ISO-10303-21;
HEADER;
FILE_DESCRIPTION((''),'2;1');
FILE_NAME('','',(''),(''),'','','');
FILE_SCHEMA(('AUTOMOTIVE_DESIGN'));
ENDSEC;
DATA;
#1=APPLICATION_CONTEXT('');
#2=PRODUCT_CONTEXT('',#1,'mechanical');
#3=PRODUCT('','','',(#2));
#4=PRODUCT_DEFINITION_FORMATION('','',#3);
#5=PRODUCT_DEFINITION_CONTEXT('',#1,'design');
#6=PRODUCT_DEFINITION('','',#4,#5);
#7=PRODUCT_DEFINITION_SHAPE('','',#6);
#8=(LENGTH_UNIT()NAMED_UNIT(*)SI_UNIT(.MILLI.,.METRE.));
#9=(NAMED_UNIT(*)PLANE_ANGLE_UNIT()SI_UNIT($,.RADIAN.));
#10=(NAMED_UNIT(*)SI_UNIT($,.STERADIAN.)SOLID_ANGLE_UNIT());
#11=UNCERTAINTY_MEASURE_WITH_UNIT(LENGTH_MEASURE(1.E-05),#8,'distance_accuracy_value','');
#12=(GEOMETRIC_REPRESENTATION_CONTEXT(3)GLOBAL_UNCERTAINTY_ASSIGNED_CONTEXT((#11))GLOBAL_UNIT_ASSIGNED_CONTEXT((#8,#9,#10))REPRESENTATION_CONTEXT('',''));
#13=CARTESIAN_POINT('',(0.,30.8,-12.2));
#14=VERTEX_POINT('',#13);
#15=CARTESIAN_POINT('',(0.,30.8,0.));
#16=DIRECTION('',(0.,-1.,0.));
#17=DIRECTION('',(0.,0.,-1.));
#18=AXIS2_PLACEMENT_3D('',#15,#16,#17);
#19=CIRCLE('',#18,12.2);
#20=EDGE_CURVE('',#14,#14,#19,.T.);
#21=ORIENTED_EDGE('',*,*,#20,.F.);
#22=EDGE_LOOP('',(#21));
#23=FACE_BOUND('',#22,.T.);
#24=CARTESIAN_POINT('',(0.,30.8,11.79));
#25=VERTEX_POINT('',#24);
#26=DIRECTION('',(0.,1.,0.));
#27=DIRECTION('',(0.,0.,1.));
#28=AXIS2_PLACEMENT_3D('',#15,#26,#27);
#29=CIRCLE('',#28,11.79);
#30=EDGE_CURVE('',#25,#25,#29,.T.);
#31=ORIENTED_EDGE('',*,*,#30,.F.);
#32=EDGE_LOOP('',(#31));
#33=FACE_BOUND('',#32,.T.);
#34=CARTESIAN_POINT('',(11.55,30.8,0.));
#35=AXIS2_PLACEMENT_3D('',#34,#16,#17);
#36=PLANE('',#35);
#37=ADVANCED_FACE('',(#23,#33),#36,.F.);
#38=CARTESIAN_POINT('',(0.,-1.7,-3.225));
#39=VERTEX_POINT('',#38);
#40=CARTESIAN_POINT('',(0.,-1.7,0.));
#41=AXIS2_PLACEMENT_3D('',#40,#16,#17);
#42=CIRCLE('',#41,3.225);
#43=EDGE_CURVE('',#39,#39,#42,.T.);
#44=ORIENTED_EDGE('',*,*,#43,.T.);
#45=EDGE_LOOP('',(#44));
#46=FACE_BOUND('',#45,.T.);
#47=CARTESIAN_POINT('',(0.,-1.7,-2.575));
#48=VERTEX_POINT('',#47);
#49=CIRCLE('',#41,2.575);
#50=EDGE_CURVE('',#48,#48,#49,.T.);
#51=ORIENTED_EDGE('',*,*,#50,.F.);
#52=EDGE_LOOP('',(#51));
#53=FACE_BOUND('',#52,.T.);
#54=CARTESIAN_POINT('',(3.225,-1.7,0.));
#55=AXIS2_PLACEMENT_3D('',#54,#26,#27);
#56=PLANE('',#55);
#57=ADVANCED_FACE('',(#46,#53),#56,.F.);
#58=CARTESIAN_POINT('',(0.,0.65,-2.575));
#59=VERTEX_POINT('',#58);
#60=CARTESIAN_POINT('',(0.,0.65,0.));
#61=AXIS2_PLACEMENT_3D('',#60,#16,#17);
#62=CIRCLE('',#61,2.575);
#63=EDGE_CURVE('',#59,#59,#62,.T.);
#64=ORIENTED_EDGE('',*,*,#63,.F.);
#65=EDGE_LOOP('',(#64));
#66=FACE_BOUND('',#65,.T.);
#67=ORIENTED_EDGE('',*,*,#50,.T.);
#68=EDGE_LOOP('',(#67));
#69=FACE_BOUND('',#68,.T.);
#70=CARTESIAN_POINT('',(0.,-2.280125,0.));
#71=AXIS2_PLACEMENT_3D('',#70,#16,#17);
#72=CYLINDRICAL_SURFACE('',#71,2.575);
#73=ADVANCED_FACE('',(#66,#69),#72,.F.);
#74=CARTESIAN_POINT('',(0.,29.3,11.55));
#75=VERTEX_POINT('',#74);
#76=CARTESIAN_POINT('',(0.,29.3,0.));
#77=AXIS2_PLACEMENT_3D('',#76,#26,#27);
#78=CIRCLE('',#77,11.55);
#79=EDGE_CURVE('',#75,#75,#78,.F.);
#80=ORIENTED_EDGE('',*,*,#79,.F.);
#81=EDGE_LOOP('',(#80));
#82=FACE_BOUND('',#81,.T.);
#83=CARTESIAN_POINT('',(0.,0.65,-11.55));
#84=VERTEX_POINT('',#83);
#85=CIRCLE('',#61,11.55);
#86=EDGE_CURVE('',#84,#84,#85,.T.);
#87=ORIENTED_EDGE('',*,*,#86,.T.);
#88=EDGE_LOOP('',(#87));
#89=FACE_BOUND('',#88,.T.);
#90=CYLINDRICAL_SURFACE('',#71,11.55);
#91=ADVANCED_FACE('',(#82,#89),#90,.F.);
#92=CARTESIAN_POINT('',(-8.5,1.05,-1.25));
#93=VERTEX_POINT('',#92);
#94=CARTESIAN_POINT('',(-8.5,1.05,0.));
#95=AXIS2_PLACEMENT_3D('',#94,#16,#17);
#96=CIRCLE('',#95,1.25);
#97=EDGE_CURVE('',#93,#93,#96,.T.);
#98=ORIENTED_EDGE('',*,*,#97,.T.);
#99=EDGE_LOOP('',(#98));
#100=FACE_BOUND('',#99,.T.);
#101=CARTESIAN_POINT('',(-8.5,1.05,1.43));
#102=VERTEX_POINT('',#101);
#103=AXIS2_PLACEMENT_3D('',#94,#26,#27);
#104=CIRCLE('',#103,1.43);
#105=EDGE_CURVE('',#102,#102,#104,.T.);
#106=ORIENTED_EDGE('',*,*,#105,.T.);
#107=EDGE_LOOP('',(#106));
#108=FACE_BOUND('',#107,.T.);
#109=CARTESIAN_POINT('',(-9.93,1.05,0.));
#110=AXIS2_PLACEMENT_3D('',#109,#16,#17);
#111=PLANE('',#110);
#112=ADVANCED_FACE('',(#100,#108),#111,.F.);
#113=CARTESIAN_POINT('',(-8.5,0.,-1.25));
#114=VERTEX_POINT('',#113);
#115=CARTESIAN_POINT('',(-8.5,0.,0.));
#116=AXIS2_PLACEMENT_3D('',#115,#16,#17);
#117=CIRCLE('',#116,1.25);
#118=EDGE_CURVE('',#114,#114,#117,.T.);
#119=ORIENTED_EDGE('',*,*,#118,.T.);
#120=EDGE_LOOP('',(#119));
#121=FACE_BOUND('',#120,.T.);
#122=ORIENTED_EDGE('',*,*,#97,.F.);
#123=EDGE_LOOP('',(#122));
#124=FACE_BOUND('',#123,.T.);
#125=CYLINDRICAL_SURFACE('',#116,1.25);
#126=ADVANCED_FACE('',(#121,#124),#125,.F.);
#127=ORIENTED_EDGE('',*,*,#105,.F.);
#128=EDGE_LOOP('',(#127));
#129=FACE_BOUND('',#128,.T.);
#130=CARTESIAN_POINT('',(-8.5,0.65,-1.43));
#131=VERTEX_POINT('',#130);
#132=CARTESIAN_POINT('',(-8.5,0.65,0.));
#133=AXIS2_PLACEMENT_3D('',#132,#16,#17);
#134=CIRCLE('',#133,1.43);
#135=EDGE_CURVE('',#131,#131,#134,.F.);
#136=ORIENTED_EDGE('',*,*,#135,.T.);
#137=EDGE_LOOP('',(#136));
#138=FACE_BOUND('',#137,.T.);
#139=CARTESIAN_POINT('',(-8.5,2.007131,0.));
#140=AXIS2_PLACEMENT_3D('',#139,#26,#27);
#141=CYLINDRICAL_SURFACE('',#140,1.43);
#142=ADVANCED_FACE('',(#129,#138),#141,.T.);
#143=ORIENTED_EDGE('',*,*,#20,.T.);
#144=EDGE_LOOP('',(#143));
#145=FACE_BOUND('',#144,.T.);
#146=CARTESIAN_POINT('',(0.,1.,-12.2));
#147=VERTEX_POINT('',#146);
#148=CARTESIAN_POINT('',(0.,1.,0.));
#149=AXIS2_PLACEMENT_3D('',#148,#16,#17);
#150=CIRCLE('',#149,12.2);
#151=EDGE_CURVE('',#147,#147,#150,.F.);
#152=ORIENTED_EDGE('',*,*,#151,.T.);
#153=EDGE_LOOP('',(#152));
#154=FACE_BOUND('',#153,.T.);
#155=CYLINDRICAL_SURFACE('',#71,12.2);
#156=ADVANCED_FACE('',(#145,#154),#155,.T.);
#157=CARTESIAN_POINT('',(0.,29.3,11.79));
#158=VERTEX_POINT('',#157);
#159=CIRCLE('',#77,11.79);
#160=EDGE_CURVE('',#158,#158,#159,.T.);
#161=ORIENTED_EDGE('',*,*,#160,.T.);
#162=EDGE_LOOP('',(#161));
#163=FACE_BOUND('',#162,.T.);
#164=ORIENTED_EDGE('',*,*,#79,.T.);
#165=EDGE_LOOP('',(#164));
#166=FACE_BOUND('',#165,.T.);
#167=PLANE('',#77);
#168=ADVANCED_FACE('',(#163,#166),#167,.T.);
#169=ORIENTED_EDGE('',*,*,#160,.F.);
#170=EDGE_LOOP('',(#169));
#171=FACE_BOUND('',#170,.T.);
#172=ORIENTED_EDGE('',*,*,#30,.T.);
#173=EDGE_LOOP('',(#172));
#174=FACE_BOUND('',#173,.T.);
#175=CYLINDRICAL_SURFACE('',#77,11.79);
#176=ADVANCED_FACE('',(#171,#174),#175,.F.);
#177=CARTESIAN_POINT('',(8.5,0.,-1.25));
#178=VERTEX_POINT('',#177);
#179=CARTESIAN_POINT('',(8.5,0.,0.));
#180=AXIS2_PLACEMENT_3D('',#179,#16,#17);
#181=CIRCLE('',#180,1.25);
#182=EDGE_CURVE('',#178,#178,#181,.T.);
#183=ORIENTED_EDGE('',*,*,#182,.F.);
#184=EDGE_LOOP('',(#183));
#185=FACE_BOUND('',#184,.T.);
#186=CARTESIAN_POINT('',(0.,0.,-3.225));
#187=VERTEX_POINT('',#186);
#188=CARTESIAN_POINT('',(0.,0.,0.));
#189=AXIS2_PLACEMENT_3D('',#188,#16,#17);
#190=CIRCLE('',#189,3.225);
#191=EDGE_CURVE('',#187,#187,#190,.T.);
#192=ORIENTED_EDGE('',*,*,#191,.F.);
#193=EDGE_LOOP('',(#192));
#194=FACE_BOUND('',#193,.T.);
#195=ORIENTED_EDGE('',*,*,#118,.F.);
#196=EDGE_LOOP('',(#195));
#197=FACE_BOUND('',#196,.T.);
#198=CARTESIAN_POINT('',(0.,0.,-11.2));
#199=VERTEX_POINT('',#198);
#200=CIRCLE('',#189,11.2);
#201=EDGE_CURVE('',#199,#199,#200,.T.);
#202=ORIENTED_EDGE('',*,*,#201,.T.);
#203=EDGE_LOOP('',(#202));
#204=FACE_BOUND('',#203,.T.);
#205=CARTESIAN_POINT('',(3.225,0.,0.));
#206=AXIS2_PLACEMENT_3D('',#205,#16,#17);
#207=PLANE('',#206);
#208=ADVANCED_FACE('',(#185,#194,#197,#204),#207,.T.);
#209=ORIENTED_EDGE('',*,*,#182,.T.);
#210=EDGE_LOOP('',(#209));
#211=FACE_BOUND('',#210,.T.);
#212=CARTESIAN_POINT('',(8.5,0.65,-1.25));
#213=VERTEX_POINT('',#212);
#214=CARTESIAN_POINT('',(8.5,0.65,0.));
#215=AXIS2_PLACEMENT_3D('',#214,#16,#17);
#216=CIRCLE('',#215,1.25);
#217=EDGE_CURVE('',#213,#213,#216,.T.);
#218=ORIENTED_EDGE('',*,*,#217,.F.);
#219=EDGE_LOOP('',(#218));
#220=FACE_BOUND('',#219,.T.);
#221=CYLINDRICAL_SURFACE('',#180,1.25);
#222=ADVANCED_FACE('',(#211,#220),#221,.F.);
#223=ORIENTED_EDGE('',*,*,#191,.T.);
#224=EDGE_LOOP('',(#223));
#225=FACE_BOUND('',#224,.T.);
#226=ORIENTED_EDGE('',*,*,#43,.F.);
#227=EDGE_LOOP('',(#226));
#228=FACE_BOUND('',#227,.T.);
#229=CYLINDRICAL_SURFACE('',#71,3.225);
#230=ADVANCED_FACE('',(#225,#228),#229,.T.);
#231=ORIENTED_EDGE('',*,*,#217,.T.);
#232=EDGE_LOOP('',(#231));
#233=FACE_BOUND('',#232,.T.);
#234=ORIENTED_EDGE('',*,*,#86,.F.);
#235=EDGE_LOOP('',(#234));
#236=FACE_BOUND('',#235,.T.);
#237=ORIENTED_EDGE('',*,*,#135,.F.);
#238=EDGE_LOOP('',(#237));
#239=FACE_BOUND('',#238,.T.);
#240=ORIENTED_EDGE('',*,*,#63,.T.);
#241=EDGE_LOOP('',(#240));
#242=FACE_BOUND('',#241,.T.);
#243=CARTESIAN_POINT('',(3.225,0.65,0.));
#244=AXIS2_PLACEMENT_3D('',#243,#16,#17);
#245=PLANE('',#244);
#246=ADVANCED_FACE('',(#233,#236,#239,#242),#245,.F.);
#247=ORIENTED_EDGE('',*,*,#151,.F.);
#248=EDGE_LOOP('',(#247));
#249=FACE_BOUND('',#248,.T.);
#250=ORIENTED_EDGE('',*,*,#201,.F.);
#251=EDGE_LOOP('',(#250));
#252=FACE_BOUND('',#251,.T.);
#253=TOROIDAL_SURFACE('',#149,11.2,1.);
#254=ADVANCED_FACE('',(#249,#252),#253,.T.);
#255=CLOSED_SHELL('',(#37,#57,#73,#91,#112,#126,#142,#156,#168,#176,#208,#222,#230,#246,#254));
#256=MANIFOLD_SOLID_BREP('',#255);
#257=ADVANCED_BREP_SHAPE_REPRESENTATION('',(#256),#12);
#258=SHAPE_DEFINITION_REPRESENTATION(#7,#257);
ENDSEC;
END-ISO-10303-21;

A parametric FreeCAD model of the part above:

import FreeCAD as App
import Part
import Sketcher
Q = App.Units.Quantity


def edges_at(feature, points):
    """Names of the edges that pass closest to the given points."""
    edges = feature.Shape.Edges
    near = lambda p: min(range(len(edges)), key=lambda i: edges[i].distToShape(Part.Vertex(*p))[0])
    return sorted({f"Edge{near(p) + 1}" for p in points})

doc = App.newDocument("Part")
body = doc.addObject("PartDesign::Body", "Body")

# Sketch on XY plane
sketch1 = body.newObject("Sketcher::SketchObject", "Sketch")
sketch1.AttachmentSupport = (doc.getObject("XY_Plane"), [""])
sketch1.MapMode = "FlatFace"
sketch1.addGeometry([
    Part.LineSegment(App.Vector(3.2, -1.7, 0), App.Vector(3.2, 0, 0)),  # 0
    Part.LineSegment(App.Vector(3.2, 0, 0), App.Vector(12.2, 0, 0)),  # 1
    Part.LineSegment(App.Vector(12.2, 0, 0), App.Vector(12.2, 30.8, 0)),  # 2
    Part.LineSegment(App.Vector(12.2, 30.8, 0), App.Vector(11.6, 30.8, 0)),  # 3
    Part.LineSegment(App.Vector(11.6, 30.8, 0), App.Vector(11.6, 0.7, 0)),  # 4
    Part.LineSegment(App.Vector(11.6, 0.7, 0), App.Vector(2.6, 0.7, 0)),  # 5
    Part.LineSegment(App.Vector(2.6, 0.7, 0), App.Vector(2.6, -1.7, 0)),  # 6
    Part.LineSegment(App.Vector(2.6, -1.7, 0), App.Vector(3.2, -1.7, 0)),  # 7
], False)
sketch1.addConstraint([
    Sketcher.Constraint("Coincident", 0, 2, 1, 1),
    Sketcher.Constraint("Coincident", 1, 2, 2, 1),
    Sketcher.Constraint("Coincident", 2, 2, 3, 1),
    Sketcher.Constraint("Coincident", 3, 2, 4, 1),
    Sketcher.Constraint("Coincident", 4, 2, 5, 1),
    Sketcher.Constraint("Coincident", 5, 2, 6, 1),
    Sketcher.Constraint("Coincident", 6, 2, 7, 1),
    Sketcher.Constraint("Coincident", 7, 2, 0, 1),
    Sketcher.Constraint("Vertical", 0),
    Sketcher.Constraint("Horizontal", 1),
    Sketcher.Constraint("Vertical", 2),
    Sketcher.Constraint("Horizontal", 3),
    Sketcher.Constraint("Vertical", 4),
    Sketcher.Constraint("Horizontal", 5),
    Sketcher.Constraint("Vertical", 6),
    Sketcher.Constraint("Horizontal", 7),
    Sketcher.Constraint("PointOnObject", 0, 2, -1),
    Sketcher.Constraint("Equal", 1, 5),
    Sketcher.Constraint("DistanceY", 0, 1, 0, 2, Q("1.7 mm")),
    Sketcher.Constraint("DistanceY", 2, 1, 2, 2, Q("30.8 mm")),
    Sketcher.Constraint("DistanceX", 3, 2, 3, 1, Q("0.65 mm")),
    Sketcher.Constraint("DistanceY", 4, 2, 4, 1, Q("30.15 mm")),
    Sketcher.Constraint("DistanceX", -1, 1, 1, 2, Q("12.2 mm")),
    Sketcher.Constraint("DistanceX", 1, 1, 1, 2, Q("8.975 mm")),
])
revolution = body.newObject("PartDesign::Revolution", "Revolution")
revolution.Profile = sketch1
revolution.ReferenceAxis = (sketch1, ["V_Axis"])
revolution.Angle = 360

# Sketch on XZ plane
sketch2 = body.newObject("Sketcher::SketchObject", "Sketch001")
sketch2.AttachmentSupport = (doc.getObject("XZ_Plane"), [""])
sketch2.MapMode = "FlatFace"
sketch2.addGeometry([
    Part.Circle(App.Vector(-8.5, 0, 0), App.Vector(0, 0, 1), 1),
    Part.Circle(App.Vector(8.5, 0, 0), App.Vector(0, 0, 1), 1),
], False)
sketch2.addConstraint([
    Sketcher.Constraint("Equal", 0, 1),
    Sketcher.Constraint("Symmetric", 0, 3, 1, 3, -1, 1),
    Sketcher.Constraint("PointOnObject", 0, 3, -1),
    Sketcher.Constraint("Diameter", 0, Q("2 mm")),
    Sketcher.Constraint("DistanceX", 0, 3, 1, 3, Q("17 mm")),
])
pocket1 = body.newObject("PartDesign::Pocket", "Pocket")
pocket1.Profile = sketch2
pocket1.Type = "ThroughAll"

# Sketch on XY plane
sketch3 = body.newObject("Sketcher::SketchObject", "Sketch002")
sketch3.AttachmentSupport = (doc.getObject("XY_Plane"), [""])
sketch3.MapMode = "FlatFace"
sketch3.addGeometry([
    Part.LineSegment(App.Vector(-9.93, 1.05, 0), App.Vector(-9.93, 0.65, 0)),
    Part.LineSegment(App.Vector(-9.93, 0.65, 0), App.Vector(-9.5, 0.65, 0)),
    Part.LineSegment(App.Vector(-9.5, 0.65, 0), App.Vector(-9.5, 1.05, 0)),
    Part.LineSegment(App.Vector(-9.5, 1.05, 0), App.Vector(-9.93, 1.05, 0)),
], False)
sketch3.addGeometry(Part.LineSegment(App.Vector(-8.5, 1.05, 0), App.Vector(-8.5, 0.65, 0)), True)  # axis
sketch3.addConstraint([
    Sketcher.Constraint("Coincident", 0, 2, 1, 1),
    Sketcher.Constraint("Coincident", 1, 2, 2, 1),
    Sketcher.Constraint("Coincident", 2, 2, 3, 1),
    Sketcher.Constraint("Coincident", 3, 2, 0, 1),
    Sketcher.Constraint("Vertical", 0),
    Sketcher.Constraint("Horizontal", 1),
    Sketcher.Constraint("Vertical", 2),
    Sketcher.Constraint("Horizontal", 3),
    Sketcher.Constraint("Vertical", 4),
    Sketcher.Constraint("Horizontal", 3, 2, 4, 1),
    Sketcher.Constraint("Horizontal", 1, 2, 4, 2),
    Sketcher.Constraint("DistanceY", 0, 2, 0, 1, Q("0.4 mm")),
    Sketcher.Constraint("DistanceX", 2, 2, 4, 1, Q("1 mm")),
    Sketcher.Constraint("DistanceX", 1, 1, 1, 2, Q("0.43 mm")),
    Sketcher.Constraint("DistanceX", 1, 2, -1, 1, Q("9.5 mm")),
    Sketcher.Constraint("DistanceY", -1, 1, 0, 2, Q("0.65 mm")),
])
revolution2 = body.newObject("PartDesign::Revolution", "Revolution001")
revolution2.Profile = sketch3
revolution2.ReferenceAxis = (sketch3, ["Axis0"])
revolution2.Angle = 360

# Sketch on XZ plane
sketch4 = body.newObject("Sketcher::SketchObject", "Sketch003")
sketch4.AttachmentSupport = (doc.getObject("XZ_Plane"), [""])
sketch4.MapMode = "FlatFace"
sketch4.addGeometry([
    Part.Circle(App.Vector(-8.5, 0, 0), App.Vector(0, 0, 1), 1.2),
    Part.Circle(App.Vector(8.5, 0, 0), App.Vector(0, 0, 1), 1.2),
], False)
sketch4.addConstraint([
    Sketcher.Constraint("Equal", 0, 1),
    Sketcher.Constraint("Symmetric", 0, 3, 1, 3, -1, 1),
    Sketcher.Constraint("PointOnObject", 0, 3, -1),
    Sketcher.Constraint("Diameter", 0, Q("2.5 mm")),
    Sketcher.Constraint("DistanceX", 0, 3, 1, 3, Q("17 mm")),
])
doc.recompute()
hole = body.newObject("PartDesign::Hole", "Hole")
hole.Profile = sketch4
hole.ThreadType = "None"
hole.Diameter = 2.5
hole.DepthType = "ThroughAll"

# Sketch on XZ plane
sketch5 = body.newObject("Sketcher::SketchObject", "Sketch004")
sketch5.AttachmentSupport = (doc.getObject("XZ_Plane"), [""])
sketch5.MapMode = "FlatFace"
sketch5.AttachmentOffset = App.Placement(App.Vector(0, 0, -30.8), App.Rotation())
sketch5.addGeometry(Part.Circle(App.Vector(0, 0, 0), App.Vector(0, 0, 1), 12), False)
sketch5.addConstraint([
    Sketcher.Constraint("Coincident", 0, 3, -1, 1),
    Sketcher.Constraint("Diameter", 0, Q("23.58 mm")),
])
pocket2 = body.newObject("PartDesign::Pocket", "Pocket001")
pocket2.Profile = sketch5
pocket2.Length = 1.5
pocket2.Reversed = True
doc.recompute()

fillet = body.newObject("PartDesign::Fillet", "Fillet")
fillet.Base = (pocket2, edges_at(pocket2, [(-12.2, 0, 0)]))
fillet.Radius = 1

doc.recompute()
